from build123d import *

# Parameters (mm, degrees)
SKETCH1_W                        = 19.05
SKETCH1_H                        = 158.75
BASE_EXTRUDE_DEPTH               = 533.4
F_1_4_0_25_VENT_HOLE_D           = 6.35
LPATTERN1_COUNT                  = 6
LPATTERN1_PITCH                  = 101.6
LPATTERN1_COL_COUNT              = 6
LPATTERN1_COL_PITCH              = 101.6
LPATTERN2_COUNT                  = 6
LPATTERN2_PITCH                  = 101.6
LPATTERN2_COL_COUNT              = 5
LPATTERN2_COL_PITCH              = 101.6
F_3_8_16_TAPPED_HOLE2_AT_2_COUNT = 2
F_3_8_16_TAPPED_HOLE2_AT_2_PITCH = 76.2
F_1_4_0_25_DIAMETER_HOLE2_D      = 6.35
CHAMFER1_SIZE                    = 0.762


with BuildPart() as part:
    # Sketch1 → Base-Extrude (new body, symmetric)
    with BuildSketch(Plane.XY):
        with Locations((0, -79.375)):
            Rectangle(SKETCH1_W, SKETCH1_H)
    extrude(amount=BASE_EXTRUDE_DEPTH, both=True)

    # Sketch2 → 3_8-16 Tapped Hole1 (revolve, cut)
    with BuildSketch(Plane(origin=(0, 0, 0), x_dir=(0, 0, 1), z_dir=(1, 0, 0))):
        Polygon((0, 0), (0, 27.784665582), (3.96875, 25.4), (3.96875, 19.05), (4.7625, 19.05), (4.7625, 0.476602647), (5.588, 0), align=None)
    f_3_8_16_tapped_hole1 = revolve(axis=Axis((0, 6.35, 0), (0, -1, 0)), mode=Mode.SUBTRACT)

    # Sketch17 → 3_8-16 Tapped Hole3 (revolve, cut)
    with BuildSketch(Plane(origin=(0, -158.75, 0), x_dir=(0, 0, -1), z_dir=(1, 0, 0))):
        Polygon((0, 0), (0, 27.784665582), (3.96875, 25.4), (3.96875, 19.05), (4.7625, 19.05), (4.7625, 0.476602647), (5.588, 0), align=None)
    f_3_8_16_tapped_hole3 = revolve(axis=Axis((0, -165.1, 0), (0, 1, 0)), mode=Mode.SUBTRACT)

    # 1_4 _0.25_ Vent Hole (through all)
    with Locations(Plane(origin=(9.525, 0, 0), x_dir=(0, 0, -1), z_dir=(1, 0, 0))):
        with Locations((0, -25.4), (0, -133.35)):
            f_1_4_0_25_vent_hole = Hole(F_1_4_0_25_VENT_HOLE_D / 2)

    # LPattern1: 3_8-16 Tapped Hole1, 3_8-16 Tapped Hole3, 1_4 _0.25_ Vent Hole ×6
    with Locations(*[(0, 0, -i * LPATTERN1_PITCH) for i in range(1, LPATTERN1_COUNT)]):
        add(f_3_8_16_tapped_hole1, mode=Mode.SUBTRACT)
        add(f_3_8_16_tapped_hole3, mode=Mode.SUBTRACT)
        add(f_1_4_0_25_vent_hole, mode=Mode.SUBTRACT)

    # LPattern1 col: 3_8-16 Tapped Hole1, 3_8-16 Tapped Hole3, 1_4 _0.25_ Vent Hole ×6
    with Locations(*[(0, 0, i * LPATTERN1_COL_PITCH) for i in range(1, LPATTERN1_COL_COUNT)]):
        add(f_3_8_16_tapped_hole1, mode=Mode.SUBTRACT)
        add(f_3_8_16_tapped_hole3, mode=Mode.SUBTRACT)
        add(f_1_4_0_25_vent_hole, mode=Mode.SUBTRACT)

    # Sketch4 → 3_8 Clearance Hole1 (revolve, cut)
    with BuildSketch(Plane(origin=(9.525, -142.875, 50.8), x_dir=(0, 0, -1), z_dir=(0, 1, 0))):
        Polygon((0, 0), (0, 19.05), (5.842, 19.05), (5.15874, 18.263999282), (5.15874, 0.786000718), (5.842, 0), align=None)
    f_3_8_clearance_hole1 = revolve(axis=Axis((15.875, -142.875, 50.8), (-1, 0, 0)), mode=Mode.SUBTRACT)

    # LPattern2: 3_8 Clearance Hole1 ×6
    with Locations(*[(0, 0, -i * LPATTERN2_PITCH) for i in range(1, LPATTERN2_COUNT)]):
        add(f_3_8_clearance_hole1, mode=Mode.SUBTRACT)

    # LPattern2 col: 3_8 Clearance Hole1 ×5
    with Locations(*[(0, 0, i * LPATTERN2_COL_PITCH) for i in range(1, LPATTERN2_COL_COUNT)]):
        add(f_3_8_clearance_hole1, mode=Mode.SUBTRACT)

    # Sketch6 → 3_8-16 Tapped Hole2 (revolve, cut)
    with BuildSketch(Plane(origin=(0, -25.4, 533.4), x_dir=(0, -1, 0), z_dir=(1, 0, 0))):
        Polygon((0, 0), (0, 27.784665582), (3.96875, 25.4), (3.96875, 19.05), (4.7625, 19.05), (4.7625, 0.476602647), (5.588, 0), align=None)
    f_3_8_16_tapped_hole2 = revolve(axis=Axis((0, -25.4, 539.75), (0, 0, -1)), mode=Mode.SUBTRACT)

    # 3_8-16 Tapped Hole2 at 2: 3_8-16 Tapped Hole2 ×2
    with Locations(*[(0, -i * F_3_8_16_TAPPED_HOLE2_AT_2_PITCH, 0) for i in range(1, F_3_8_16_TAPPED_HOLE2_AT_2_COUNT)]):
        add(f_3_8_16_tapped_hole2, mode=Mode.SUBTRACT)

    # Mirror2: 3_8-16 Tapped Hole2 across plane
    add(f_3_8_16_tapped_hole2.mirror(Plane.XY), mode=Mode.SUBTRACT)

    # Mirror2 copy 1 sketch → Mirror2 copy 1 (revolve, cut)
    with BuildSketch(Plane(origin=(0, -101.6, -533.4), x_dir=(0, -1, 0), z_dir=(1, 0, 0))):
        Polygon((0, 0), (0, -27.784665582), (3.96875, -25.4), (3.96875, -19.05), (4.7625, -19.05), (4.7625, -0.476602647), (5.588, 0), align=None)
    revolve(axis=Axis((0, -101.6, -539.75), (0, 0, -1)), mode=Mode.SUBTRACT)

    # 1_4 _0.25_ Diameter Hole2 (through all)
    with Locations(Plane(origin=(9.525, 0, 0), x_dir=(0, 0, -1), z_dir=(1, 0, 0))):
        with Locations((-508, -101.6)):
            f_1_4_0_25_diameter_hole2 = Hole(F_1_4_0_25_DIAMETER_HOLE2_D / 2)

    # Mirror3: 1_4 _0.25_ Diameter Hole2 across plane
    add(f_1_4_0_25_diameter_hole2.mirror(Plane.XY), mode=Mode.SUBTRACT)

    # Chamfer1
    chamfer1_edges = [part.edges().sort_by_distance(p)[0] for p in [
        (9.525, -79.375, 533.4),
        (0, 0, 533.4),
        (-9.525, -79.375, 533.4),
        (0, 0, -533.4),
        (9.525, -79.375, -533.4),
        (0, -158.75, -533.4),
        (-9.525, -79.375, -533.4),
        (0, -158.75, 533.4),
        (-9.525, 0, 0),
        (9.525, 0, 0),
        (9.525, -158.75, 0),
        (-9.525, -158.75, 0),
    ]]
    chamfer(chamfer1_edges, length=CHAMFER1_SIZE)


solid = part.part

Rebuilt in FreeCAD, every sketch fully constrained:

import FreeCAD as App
import Part
import Sketcher

V = App.Vector
Q = App.Units.Quantity


def edges_at(feature, points):
    """Names of the edges that pass closest to the given points."""
    edges = feature.Shape.Edges
    near = lambda p: min(range(len(edges)), key=lambda i: edges[i].distToShape(Part.Vertex(*p))[0])
    return sorted({f"Edge{near(p) + 1}" for p in points})


def add_polygon(sketch, points):
    """Adds a closed chain of lines whose ends are joined by coincident constraints."""
    first, n = sketch.GeometryCount, len(points)
    for a, b in zip(points, points[1:] + points[:1]):
        sketch.addGeometry(Part.LineSegment(App.Vector(*a, 0), App.Vector(*b, 0)), False)
    for i in range(n):
        sketch.addConstraint(Sketcher.Constraint("Coincident", first + i, 2, first + (i + 1) % n, 1))

doc = App.newDocument("Part")
body = doc.addObject("PartDesign::Body", "Body")

# Sketch on XY plane
sketch1 = body.newObject("Sketcher::SketchObject", "Sketch")
sketch1.AttachmentSupport = (doc.getObject("XY_Plane"), [""])
sketch1.MapMode = "FlatFace"
add_polygon(sketch1, [(-10, 0), (-10, -159), (10, -159), (10, 0)])  # lines 0-3
sketch1.addConstraint([
    Sketcher.Constraint("Vertical", 0),
    Sketcher.Constraint("Horizontal", 1),
    Sketcher.Constraint("Vertical", 2),
    Sketcher.Constraint("Horizontal", 3),
    Sketcher.Constraint("Symmetric", 2, 2, 3, 2, -1, 1),
    Sketcher.Constraint("DistanceX", 1, 1, 1, 2, Q("0.75 in")),
    Sketcher.Constraint("DistanceY", 0, 2, 0, 1, Q("6.25 in")),
])
pad1 = body.newObject("PartDesign::Pad", "Pad")
pad1.Profile = sketch1
pad1.Length = Q("42 in")
pad1.Midplane = True

# Sketch on YZ plane
sketch2 = body.newObject("Sketcher::SketchObject", "Sketch001")
sketch2.AttachmentSupport = (doc.getObject("YZ_Plane"), [""])
sketch2.MapMode = "FlatFace"
add_polygon(sketch2, [(-27.8, 0), (0, 0), (0, 5.6), (-0.5, 4.8), (-19.1, 4.8), (-19.1, 4), (-25.4, 4)])  # lines 0-6
sketch2.addConstraint([
    Sketcher.Constraint("Horizontal", 0),
    Sketcher.Constraint("Vertical", 1),
    Sketcher.Constraint("Horizontal", 3),
    Sketcher.Constraint("Vertical", 4),
    Sketcher.Constraint("Horizontal", 5),
    Sketcher.Constraint("Coincident", 0, 2, -1, 1),
    Sketcher.Constraint("DistanceX", 5, 2, -1, 1, Q("1 in")),
    Sketcher.Constraint("Angle", 2, Q("-120 deg")),
    Sketcher.Constraint("Angle", 6, Q("-121 deg")),
    Sketcher.Constraint("DistanceX", 5, 2, 5, 1, Q("0.25 in")),
    Sketcher.Constraint("DistanceY", 1, 1, 1, 2, Q("0.22 in")),
    Sketcher.Constraint("DistanceY", 4, 2, 4, 1, Q("0.03125 in")),
    Sketcher.Constraint("DistanceY", -1, 1, 2, 2, Q("0.1875 in")),
])
groove = body.newObject("PartDesign::Groove", "Groove")
groove.Profile = sketch2
groove.ReferenceAxis = (sketch2, ["H_Axis"])
groove.Angle = 360

# Sketch on YZ plane
sketch3 = body.newObject("Sketcher::SketchObject", "Sketch002")
sketch3.AttachmentSupport = (doc.getObject("YZ_Plane"), [""])
sketch3.MapMode = "FlatFace"
add_polygon(sketch3, [(-131, 0), (-158.8, 0), (-158.8, -5.6), (-158.3, -4.8), (-139.7, -4.8), (-139.7, -4), (-133.3, -4)])  # lines 0-6
sketch3.addConstraint([
    Sketcher.Constraint("Horizontal", 0),
    Sketcher.Constraint("Vertical", 1),
    Sketcher.Constraint("Horizontal", 3),
    Sketcher.Constraint("Vertical", 4),
    Sketcher.Constraint("Horizontal", 5),
    Sketcher.Constraint("PointOnObject", 0, 2, -1),
    Sketcher.Constraint("Angle", 2, Q("60 deg")),
    Sketcher.Constraint("Angle", 6, Q("59 deg")),
    Sketcher.Constraint("DistanceX", 1, 2, 5, 2, Q("1 in")),
    Sketcher.Constraint("DistanceX", 5, 1, 5, 2, Q("0.25 in")),
    Sketcher.Constraint("DistanceY", 1, 2, 1, 1, Q("0.22 in")),
    Sketcher.Constraint("DistanceX", 3, 2, -1, 1, Q("5.5 in")),
    Sketcher.Constraint("DistanceY", 4, 1, 4, 2, Q("0.03125 in")),
    Sketcher.Constraint("DistanceY", 2, 2, -1, 1, Q("0.1875 in")),
])
groove2 = body.newObject("PartDesign::Groove", "Groove001")
groove2.Profile = sketch3
groove2.ReferenceAxis = (sketch3, ["H_Axis"])
groove2.Angle = 360

# Sketch on YZ plane
sketch4 = body.newObject("Sketcher::SketchObject", "Sketch003")
sketch4.AttachmentSupport = (doc.getObject("YZ_Plane"), [""])
sketch4.MapMode = "FlatFace"
sketch4.AttachmentOffset = App.Placement(V(0, 0, 0.375 * 25.4), App.Rotation())
sketch4.addGeometry([
    Part.Circle(V(-25.4, 0, 0), V(0, 0, 1), 3.2),
    Part.Circle(V(-133.3, 0, 0), V(0, 0, 1), 3.2),
], False)
sketch4.addConstraint([
    Sketcher.Constraint("Equal", 0, 1),
    Sketcher.Constraint("PointOnObject", 0, 3, -1),
    Sketcher.Constraint("PointOnObject", 1, 3, -1),
    Sketcher.Constraint("Diameter", 0, Q("0.25 in")),
    Sketcher.Constraint("DistanceX", 0, 3, -1, 1, Q("1 in")),
    Sketcher.Constraint("DistanceX", 1, 3, -1, 1, Q("5.25 in")),
])
doc.recompute()
hole = body.newObject("PartDesign::Hole", "Hole")
hole.Profile = sketch4
hole.ThreadType = "None"
hole.Diameter = Q("0.25 in")
hole.DepthType = "ThroughAll"
doc.recompute()

linearpattern = body.newObject("PartDesign::LinearPattern", "LinearPattern")
linearpattern.Originals = [groove, groove2, hole]
linearpattern.Direction = (doc.getObject("Z_Axis"), [""])
linearpattern.Mode = "offset"
linearpattern.Offset = Q("4 in")
linearpattern.Occurrences = 6
linearpattern.Reversed = True
body.Tip = linearpattern
doc.recompute()

linearpattern2 = body.newObject("PartDesign::LinearPattern", "LinearPattern001")
linearpattern2.Originals = [groove, groove2, hole]
linearpattern2.Direction = (doc.getObject("Z_Axis"), [""])
linearpattern2.Mode = "offset"
linearpattern2.Offset = Q("4 in")
linearpattern2.Occurrences = 6
body.Tip = linearpattern2

# Sketch on XZ plane
sketch5 = body.newObject("Sketcher::SketchObject", "Sketch004")
sketch5.AttachmentSupport = (doc.getObject("XZ_Plane"), [""])
sketch5.MapMode = "FlatFace"
sketch5.AttachmentOffset = App.Placement(V(0, 0, 5.625 * 25.4), App.Rotation())
add_polygon(sketch5, [(-9.5, 50.8), (9.5, 50.8), (9.5, 45), (8.7, 45.6), (-8.7, 45.6), (-9.5, 45)])  # lines 0-5
sketch5.addGeometry(Part.LineSegment(V(9.5, 50.8, 0), V(-9.5, 50.8, 0)), True)  # axis
sketch5.addConstraint([
    Sketcher.Constraint("Horizontal", 0),
    Sketcher.Constraint("Vertical", 1),
    Sketcher.Constraint("Horizontal", 3),
    Sketcher.Constraint("Vertical", 5),
    Sketcher.Constraint("Horizontal", 6),
    Sketcher.Constraint("Coincident", 6, 1, 0, 2),
    Sketcher.Constraint("Symmetric", 1, 2, 4, 2, -2),
    Sketcher.Constraint("Vertical", 4, 2, 6, 2),
    Sketcher.Constraint("Equal", 2, 4),
    Sketcher.Constraint("DistanceY", -1, 1, 0, 2, Q("2 in")),
    Sketcher.Constraint("Angle", 2, Q("139 deg")),
    Sketcher.Constraint("DistanceX", 0, 1, 0, 2, Q("0.75 in")),
    Sketcher.Constraint("DistanceY", 1, 2, 1, 1, Q("0.23 in")),
    Sketcher.Constraint("DistanceX", 3, 2, 3, 1, 17.477999),
])
groove3 = body.newObject("PartDesign::Groove", "Groove002")
groove3.Profile = sketch5
groove3.ReferenceAxis = (sketch5, ["Axis0"])
groove3.Angle = 360
doc.recompute()

linearpattern3 = body.newObject("PartDesign::LinearPattern", "LinearPattern002")
linearpattern3.Originals = [groove3]
linearpattern3.Direction = (doc.getObject("Z_Axis"), [""])
linearpattern3.Mode = "offset"
linearpattern3.Offset = Q("4 in")
linearpattern3.Occurrences = 6
linearpattern3.Reversed = True
body.Tip = linearpattern3
doc.recompute()

linearpattern4 = body.newObject("PartDesign::LinearPattern", "LinearPattern003")
linearpattern4.Originals = [groove3]
linearpattern4.Direction = (doc.getObject("Z_Axis"), [""])
linearpattern4.Mode = "offset"
linearpattern4.Offset = Q("4 in")
linearpattern4.Occurrences = 5
body.Tip = linearpattern4

# Sketch on YZ plane
sketch6 = body.newObject("Sketcher::SketchObject", "Sketch005")
sketch6.AttachmentSupport = (doc.getObject("YZ_Plane"), [""])
sketch6.MapMode = "FlatFace"
add_polygon(sketch6, [(-25.4, 505.6), (-25.4, 533.4), (-31, 533.4), (-30.2, 532.9), (-30.2, 514.4), (-29.4, 514.4), (-29.4, 508)])  # lines 0-6
sketch6.addGeometry(Part.LineSegment(V(-25.4, 533.4, 0), V(-25.4, 505.6, 0)), True)  # axis
sketch6.addConstraint([
    Sketcher.Constraint("Vertical", 0),
    Sketcher.Constraint("Horizontal", 1),
    Sketcher.Constraint("Vertical", 3),
    Sketcher.Constraint("Horizontal", 4),
    Sketcher.Constraint("Vertical", 5),
    Sketcher.Constraint("Vertical", 7),
    Sketcher.Constraint("Coincident", 7, 1, 0, 2),
    Sketcher.Constraint("Equal", 0, 7),
    Sketcher.Constraint("DistanceX", 0, 2, -1, 1, Q("1 in")),
    Sketcher.Constraint("DistanceY", -1, 1, 0, 2, Q("21 in")),
    Sketcher.Constraint("DistanceY", -1, 1, 5, 2, Q("20 in")),
    Sketcher.Constraint("Angle", 2, Q("-30 deg")),
    Sketcher.Constraint("Angle", 6, Q("-31 deg")),
    Sketcher.Constraint("DistanceX", 1, 2, 1, 1, Q("0.22 in")),
    Sketcher.Constraint("DistanceY", 5, 2, 5, 1, Q("0.25 in")),
    Sketcher.Constraint("DistanceX", 4, 1, 4, 2, Q("0.03125 in")),
    Sketcher.Constraint("DistanceX", 2, 2, -1, 1, Q("1.1875 in")),
])
groove4 = body.newObject("PartDesign::Groove", "Groove003")
groove4.Profile = sketch6
groove4.ReferenceAxis = (sketch6, ["Axis0"])
groove4.Angle = 360
doc.recompute()

linearpattern5 = body.newObject("PartDesign::LinearPattern", "LinearPattern004")
linearpattern5.Originals = [groove4]
linearpattern5.Direction = (doc.getObject("Y_Axis"), [""])
linearpattern5.Mode = "offset"
linearpattern5.Offset = Q("3 in")
linearpattern5.Occurrences = 2
linearpattern5.Reversed = True
body.Tip = linearpattern5
doc.recompute()

mirrored = body.newObject("PartDesign::Mirrored", "Mirrored")
mirrored.Originals = [groove4]
mirrored.MirrorPlane = (doc.getObject("XY_Plane"), [""])
body.Tip = mirrored

# Sketch on YZ plane
sketch7 = body.newObject("Sketcher::SketchObject", "Sketch006")
sketch7.AttachmentSupport = (doc.getObject("YZ_Plane"), [""])
sketch7.MapMode = "FlatFace"
add_polygon(sketch7, [(-101.6, -533.4), (-101.6, -505.6), (-105.6, -508), (-105.6, -514.4), (-106.4, -514.4), (-106.4, -532.9), (-107.2, -533.4)])  # lines 0-6
sketch7.addGeometry(Part.LineSegment(V(-101.6, -505.6, 0), V(-101.6, -533.4, 0)), True)  # axis
sketch7.addConstraint([
    Sketcher.Constraint("Vertical", 0),
    Sketcher.Constraint("Vertical", 2),
    Sketcher.Constraint("Horizontal", 3),
    Sketcher.Constraint("Vertical", 4),
    Sketcher.Constraint("Horizontal", 6),
    Sketcher.Constraint("Vertical", 7),
    Sketcher.Constraint("Coincident", 7, 1, 0, 2),
    Sketcher.Constraint("Horizontal", 5, 2, 7, 2),
    Sketcher.Constraint("DistanceX", 0, 2, -1, 1, Q("4 in")),
    Sketcher.Constraint("DistanceY", 1, 2, -1, 1, Q("20 in")),
    Sketcher.Constraint("DistanceY", 5, 2, -1, 1, Q("21 in")),
    Sketcher.Constraint("Angle", 1, Q("-149 deg")),
    Sketcher.Constraint("Angle", 5, Q("-150 deg")),
    Sketcher.Constraint("DistanceX", 6, 1, 6, 2, Q("0.22 in")),
    Sketcher.Constraint("DistanceY", 2, 2, 2, 1, Q("0.25 in")),
    Sketcher.Constraint("DistanceX", 3, 2, 3, 1, Q("0.03125 in")),
    Sketcher.Constraint("DistanceX", 1, 2, -1, 1, Q("4.15625 in")),
])
groove5 = body.newObject("PartDesign::Groove", "Groove004")
groove5.Profile = sketch7
groove5.ReferenceAxis = (sketch7, ["Axis0"])
groove5.Angle = 360

# Sketch on YZ plane
sketch8 = body.newObject("Sketcher::SketchObject", "Sketch007")
sketch8.AttachmentSupport = (doc.getObject("YZ_Plane"), [""])
sketch8.MapMode = "FlatFace"
sketch8.AttachmentOffset = App.Placement(V(0, 0, 0.375 * 25.4), App.Rotation())
sketch8.addGeometry(Part.Circle(V(-101.6, 508, 0), V(0, 0, 1), 3.2), False)
sketch8.addConstraint([
    Sketcher.Constraint("Diameter", 0, Q("0.25 in")),
    Sketcher.Constraint("DistanceX", 0, 3, -1, 1, Q("4 in")),
    Sketcher.Constraint("DistanceY", -1, 1, 0, 3, Q("20 in")),
])
doc.recompute()
hole2 = body.newObject("PartDesign::Hole", "Hole001")
hole2.Profile = sketch8
hole2.ThreadType = "None"
hole2.Diameter = Q("0.25 in")
hole2.DepthType = "ThroughAll"
doc.recompute()

mirrored2 = body.newObject("PartDesign::Mirrored", "Mirrored001")
mirrored2.Originals = [hole2]
mirrored2.MirrorPlane = (doc.getObject("XY_Plane"), [""])
body.Tip = mirrored2
doc.recompute()

chamfer = body.newObject("PartDesign::Chamfer", "Chamfer")
chamfer.Base = (mirrored2, edges_at(mirrored2, [
    (9.525, -79.375, 533.4),
    (0, 0, 533.4),
    (-9.525, -79.375, 533.4),
    (0, 0, -533.4),
    (9.525, -79.375, -533.4),
    (0, -158.75, -533.4),
    (-9.525, -79.375, -533.4),
    (0, -158.75, 533.4),
    (-9.525, 0, 0),
    (9.525, 0, 0),
    (9.525, -158.75, 0),
    (-9.525, -158.75, 0),
]))
chamfer.Size = Q("0.03 in")

doc.recompute()
